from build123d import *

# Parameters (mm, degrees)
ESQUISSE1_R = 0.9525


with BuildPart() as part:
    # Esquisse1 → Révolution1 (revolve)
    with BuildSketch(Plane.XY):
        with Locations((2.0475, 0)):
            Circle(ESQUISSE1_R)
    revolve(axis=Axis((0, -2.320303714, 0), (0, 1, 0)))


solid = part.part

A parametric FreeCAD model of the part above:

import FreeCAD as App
import Part
import Sketcher

V = App.Vector
Q = App.Units.Quantity

doc = App.newDocument("Part")
body = doc.addObject("PartDesign::Body", "Body")

sketch1 = body.newObject("Sketcher::SketchObject", "Sketch")
sketch1.AttachmentSupport = (doc.getObject("XY_Plane"), [""])
sketch1.MapMode = "FlatFace"
sketch1.addGeometry(Part.Circle(V(2.0475, 0, 0), V(0, 0, 1), 0.9525), False)
sketch1.addConstraint(Sketcher.Constraint("PointOnObject", 0, 3, -1))
sketch1.addConstraint(Sketcher.Constraint("Diameter", 0, Q("0.075 in")))
sketch1.addConstraint(Sketcher.Constraint("DistanceX", -1, 1, 0, 3, 2.0475))
revolution = body.newObject("PartDesign::Revolution", "Revolution")
revolution.Profile = sketch1
revolution.ReferenceAxis = (sketch1, ["V_Axis"])
revolution.Angle = 360

doc.recompute()
